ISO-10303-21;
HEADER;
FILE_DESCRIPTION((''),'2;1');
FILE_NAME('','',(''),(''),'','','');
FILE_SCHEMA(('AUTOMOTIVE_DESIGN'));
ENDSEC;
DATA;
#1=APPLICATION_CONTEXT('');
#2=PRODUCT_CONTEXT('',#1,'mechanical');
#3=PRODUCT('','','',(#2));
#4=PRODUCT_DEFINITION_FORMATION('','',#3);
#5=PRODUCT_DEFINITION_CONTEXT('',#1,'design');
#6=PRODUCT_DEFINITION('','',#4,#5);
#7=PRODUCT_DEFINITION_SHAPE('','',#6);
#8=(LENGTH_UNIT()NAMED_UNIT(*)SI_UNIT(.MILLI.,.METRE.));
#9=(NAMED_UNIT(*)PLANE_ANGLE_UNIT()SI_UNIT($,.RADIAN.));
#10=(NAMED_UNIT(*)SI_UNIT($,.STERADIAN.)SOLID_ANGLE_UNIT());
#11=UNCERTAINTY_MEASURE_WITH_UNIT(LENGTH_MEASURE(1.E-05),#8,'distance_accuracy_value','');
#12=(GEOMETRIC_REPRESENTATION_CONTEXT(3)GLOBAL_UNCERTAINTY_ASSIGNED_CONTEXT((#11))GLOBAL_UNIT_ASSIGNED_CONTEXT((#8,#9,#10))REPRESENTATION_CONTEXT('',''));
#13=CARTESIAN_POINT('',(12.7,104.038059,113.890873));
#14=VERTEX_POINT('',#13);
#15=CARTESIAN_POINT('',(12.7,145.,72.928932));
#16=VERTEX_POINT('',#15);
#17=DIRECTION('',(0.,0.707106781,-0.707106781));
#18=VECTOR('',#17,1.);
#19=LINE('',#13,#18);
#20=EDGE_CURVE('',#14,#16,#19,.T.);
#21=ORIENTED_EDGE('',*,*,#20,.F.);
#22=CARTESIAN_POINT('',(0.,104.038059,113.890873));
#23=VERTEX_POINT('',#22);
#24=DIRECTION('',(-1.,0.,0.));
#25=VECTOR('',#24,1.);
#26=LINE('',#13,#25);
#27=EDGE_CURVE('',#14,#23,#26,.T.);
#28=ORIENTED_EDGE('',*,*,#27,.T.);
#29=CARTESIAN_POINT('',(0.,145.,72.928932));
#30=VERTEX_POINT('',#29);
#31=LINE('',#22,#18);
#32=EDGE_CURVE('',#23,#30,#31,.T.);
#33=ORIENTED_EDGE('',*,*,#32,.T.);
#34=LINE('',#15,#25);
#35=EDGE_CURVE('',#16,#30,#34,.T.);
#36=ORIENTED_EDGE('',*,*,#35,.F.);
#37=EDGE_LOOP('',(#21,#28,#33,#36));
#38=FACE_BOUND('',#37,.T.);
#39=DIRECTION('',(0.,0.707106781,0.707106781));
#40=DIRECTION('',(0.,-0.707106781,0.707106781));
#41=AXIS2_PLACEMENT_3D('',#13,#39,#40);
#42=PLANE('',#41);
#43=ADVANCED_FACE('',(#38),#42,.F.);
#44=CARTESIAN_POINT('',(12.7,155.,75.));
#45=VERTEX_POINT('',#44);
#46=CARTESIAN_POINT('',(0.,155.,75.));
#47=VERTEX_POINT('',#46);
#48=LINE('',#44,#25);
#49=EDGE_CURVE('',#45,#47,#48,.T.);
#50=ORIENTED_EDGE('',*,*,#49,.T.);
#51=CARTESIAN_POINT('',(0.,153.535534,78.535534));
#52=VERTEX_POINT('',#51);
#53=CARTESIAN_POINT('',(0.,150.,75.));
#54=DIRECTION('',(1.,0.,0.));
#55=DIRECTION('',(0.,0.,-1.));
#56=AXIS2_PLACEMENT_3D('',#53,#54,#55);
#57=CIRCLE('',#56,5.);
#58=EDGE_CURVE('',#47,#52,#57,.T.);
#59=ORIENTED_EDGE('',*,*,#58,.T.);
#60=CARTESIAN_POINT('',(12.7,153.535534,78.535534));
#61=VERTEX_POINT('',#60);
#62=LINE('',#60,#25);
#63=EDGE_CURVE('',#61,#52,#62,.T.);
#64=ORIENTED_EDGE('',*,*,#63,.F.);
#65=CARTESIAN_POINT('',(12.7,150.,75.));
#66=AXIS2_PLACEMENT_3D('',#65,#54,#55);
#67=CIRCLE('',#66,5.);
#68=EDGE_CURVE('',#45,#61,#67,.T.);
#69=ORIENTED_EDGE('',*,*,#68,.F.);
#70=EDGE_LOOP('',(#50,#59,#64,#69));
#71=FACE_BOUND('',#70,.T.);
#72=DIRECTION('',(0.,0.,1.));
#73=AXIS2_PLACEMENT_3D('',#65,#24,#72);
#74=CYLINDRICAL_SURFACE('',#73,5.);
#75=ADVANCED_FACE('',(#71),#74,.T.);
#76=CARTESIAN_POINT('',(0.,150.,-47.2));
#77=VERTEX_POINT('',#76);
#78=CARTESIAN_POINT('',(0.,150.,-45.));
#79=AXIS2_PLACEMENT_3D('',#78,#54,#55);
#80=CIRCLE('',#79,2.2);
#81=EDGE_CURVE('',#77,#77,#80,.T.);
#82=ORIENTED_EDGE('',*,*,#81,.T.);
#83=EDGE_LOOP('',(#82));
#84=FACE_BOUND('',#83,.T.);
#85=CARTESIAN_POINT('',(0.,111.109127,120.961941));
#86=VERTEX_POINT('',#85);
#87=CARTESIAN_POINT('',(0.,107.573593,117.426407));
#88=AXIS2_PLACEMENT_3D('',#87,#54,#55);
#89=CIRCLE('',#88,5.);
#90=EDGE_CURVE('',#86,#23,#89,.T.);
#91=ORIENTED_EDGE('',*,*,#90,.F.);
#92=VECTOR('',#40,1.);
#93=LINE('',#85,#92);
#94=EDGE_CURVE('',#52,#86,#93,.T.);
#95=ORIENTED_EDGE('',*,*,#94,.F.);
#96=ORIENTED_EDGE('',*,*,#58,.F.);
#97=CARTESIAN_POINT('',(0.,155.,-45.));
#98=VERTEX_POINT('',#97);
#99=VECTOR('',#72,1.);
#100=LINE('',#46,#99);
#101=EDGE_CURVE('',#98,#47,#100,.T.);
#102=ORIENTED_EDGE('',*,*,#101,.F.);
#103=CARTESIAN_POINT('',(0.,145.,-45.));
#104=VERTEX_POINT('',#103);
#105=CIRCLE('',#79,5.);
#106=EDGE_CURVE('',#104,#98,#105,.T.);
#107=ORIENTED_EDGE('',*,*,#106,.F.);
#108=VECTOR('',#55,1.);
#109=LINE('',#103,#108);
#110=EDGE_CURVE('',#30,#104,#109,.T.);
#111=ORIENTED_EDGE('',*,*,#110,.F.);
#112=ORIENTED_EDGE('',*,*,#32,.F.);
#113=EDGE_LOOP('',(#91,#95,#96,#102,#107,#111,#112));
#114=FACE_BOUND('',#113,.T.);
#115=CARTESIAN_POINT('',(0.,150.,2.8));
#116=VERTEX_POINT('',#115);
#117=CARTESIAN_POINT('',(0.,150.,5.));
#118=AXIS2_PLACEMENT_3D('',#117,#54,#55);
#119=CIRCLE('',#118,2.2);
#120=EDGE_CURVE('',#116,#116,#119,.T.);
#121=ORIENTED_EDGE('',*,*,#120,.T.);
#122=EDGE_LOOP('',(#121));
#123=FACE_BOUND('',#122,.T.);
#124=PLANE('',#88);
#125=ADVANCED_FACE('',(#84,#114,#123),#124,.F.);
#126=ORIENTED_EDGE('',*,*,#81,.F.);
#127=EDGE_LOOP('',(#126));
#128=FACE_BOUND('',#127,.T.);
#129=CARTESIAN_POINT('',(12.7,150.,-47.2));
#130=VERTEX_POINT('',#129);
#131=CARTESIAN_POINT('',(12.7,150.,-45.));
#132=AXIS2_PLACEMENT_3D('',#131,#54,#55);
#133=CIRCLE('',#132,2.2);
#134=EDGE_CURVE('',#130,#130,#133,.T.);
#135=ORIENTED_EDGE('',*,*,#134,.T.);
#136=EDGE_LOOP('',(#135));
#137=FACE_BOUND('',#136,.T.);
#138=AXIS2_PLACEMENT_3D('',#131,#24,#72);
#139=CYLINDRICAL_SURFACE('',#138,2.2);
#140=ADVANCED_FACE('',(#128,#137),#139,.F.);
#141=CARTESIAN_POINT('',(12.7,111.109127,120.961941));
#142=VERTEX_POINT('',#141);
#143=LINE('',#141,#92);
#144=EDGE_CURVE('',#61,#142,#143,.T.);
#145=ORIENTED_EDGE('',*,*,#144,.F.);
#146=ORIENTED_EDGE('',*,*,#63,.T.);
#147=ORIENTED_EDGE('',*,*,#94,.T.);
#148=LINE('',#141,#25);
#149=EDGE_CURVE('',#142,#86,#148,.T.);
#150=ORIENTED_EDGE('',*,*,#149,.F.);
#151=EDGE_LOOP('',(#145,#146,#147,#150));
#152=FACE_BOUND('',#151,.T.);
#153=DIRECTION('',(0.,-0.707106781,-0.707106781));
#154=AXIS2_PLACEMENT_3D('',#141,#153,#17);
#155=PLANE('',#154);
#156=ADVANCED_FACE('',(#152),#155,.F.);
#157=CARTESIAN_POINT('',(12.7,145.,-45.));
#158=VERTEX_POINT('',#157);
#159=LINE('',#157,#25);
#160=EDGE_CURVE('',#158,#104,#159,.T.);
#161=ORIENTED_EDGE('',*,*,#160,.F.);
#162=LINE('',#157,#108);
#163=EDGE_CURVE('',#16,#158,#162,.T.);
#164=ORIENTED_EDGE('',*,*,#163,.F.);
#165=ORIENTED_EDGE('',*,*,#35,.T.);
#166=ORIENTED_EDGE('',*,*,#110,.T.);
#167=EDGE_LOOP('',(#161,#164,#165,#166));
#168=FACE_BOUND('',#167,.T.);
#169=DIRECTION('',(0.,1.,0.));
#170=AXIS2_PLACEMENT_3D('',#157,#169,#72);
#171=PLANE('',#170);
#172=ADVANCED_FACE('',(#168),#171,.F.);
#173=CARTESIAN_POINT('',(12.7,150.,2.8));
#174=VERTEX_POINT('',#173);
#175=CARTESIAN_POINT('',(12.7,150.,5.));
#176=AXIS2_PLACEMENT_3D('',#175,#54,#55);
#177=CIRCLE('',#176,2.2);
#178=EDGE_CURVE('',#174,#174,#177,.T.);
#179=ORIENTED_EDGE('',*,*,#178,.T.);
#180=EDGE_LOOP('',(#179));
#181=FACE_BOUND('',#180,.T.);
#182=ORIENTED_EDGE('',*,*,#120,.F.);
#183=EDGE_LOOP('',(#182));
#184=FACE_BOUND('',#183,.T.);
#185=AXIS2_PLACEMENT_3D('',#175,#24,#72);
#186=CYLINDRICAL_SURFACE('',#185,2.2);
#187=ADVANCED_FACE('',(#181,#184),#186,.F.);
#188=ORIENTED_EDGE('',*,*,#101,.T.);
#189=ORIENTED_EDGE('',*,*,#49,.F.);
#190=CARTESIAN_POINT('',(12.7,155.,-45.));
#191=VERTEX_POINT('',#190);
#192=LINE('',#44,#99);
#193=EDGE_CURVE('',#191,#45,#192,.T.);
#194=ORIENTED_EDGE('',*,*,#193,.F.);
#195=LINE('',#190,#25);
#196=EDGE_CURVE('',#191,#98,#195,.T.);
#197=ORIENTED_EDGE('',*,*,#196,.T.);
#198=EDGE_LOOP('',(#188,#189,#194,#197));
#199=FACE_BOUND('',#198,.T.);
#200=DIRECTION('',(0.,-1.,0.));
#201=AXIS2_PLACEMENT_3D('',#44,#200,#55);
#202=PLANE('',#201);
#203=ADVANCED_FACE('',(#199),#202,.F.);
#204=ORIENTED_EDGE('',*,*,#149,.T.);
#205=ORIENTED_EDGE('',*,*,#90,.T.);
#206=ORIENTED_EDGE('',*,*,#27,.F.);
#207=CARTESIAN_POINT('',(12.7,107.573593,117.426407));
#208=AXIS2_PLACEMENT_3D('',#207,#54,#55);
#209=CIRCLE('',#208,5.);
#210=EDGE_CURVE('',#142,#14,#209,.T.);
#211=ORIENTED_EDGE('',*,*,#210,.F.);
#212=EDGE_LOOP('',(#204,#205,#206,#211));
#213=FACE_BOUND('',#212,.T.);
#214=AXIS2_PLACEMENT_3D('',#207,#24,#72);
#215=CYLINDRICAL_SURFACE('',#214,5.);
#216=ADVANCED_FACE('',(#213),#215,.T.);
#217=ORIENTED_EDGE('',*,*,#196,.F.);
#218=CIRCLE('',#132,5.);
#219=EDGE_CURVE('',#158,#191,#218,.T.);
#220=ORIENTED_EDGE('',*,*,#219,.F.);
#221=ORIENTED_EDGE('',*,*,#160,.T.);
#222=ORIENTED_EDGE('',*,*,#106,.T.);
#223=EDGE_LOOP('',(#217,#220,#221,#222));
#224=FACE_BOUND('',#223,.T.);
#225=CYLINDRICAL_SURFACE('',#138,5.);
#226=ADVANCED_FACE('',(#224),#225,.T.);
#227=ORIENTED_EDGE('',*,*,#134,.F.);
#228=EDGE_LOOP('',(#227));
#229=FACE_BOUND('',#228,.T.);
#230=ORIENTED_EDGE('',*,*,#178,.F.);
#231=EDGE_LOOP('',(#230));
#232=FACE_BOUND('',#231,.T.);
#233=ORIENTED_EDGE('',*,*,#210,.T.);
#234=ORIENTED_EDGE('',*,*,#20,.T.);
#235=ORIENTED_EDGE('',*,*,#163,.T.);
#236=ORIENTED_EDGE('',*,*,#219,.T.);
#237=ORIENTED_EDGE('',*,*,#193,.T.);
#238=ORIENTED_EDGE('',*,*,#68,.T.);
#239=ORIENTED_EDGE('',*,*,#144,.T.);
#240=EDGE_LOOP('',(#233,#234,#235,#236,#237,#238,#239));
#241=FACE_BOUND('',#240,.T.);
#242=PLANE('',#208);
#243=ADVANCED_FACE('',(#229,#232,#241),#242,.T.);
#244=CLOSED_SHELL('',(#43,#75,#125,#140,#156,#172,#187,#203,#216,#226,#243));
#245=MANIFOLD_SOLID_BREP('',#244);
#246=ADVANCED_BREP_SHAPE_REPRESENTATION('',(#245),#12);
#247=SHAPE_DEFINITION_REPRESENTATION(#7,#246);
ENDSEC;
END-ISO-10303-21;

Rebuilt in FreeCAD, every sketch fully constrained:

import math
import FreeCAD as App
import Part
import Sketcher
Q = App.Units.Quantity

doc = App.newDocument("Part")
params = doc.addObject("Spreadsheet::Sheet", "Params")
for row, (alias, value) in enumerate([
    ("sketch1_radius", "5 mm"),
    ("sketch1_diameter", "4.4 mm"),
    ("sketch1_height", "120 mm"),
    ("sketch1_length", "60 mm"),
    ("pad1_length", "12.7 mm"),
], start=1):
    params.set(f"A{row}", alias)
    params.set(f"B{row}", "=" + value)
    params.setAlias(f"B{row}", alias)

body = doc.addObject("PartDesign::Body", "Body")

sketch1 = doc.addObject("Sketcher::SketchObject", "Sketch")
body.addObject(sketch1)
sketch1.AttachmentSupport = (doc.YZ_Plane, [""])
sketch1.MapMode = "FlatFace"
sketch1.addGeometry([
    Part.LineSegment(App.Vector(155, -45, 0), App.Vector(155, 75, 0)),
    Part.ArcOfCircle(Part.Circle(App.Vector(150, 75, 0), App.Vector(0, 0, 1), 5), math.radians(0), math.radians(45)),
    Part.LineSegment(App.Vector(153.535534, 78.535534, 0), App.Vector(111.109127, 120.961941, 0)),
    Part.ArcOfCircle(Part.Circle(App.Vector(107.573593, 117.426407, 0), App.Vector(0, 0, 1), 5), math.radians(45), math.radians(225)),
    Part.LineSegment(App.Vector(104.038059, 113.890873, 0), App.Vector(145, 72.928932, 0)),
    Part.LineSegment(App.Vector(145, 72.928932, 0), App.Vector(145, -45, 0)),
    Part.ArcOfCircle(Part.Circle(App.Vector(150, -45, 0), App.Vector(0, 0, 1), 5), math.radians(180), math.radians(360)),
    Part.Circle(App.Vector(150, -45, 0), App.Vector(0, 0, 1), 2.2),
    Part.Circle(App.Vector(150, 5, 0), App.Vector(0, 0, 1), 2.2),
], False)
sketch1.addConstraint([
    Sketcher.Constraint("Tangent", 0, 2, 1, 1),
    Sketcher.Constraint("Tangent", 1, 2, 2, 1),
    Sketcher.Constraint("Tangent", 2, 2, 3, 1),
    Sketcher.Constraint("Tangent", 3, 2, 4, 1),
    Sketcher.Constraint("Coincident", 4, 2, 5, 1),
    Sketcher.Constraint("Tangent", 5, 2, 6, 1),
    Sketcher.Constraint("Tangent", 6, 2, 0, 1),
    Sketcher.Constraint("Vertical", 0),
    Sketcher.Constraint("Vertical", 5),
    Sketcher.Constraint("Coincident", 7, 3, 6, 3),
    Sketcher.Constraint("Equal", 1, 3),
    Sketcher.Constraint("Equal", 3, 6),
    Sketcher.Constraint("Equal", 7, 8),
    Sketcher.Constraint("Parallel", 2, 4),
    Sketcher.Constraint("Vertical", 7, 3, 8, 3),
    Sketcher.Constraint("Radius", 1, 5.0),
    Sketcher.Constraint("Diameter", 7, 4.4),
    Sketcher.Constraint("DistanceY", 0, 1, 0, 2, 120.0),
    Sketcher.Constraint("Angle", 2, Q("135 deg")),
    Sketcher.Constraint("Distance", 2, 60.0),
    Sketcher.Constraint("DistanceX", -1, 1, 1, 3, 150.0),
    Sketcher.Constraint("DistanceY", -1, 1, 1, 3, 75.0),
    Sketcher.Constraint("DistanceY", -1, 1, 8, 3, 5.0),
])
sketch1.setExpression("Constraints[15]", "Params.sketch1_radius")
sketch1.setExpression("Constraints[16]", "Params.sketch1_diameter")
sketch1.setExpression("Constraints[17]", "Params.sketch1_height")
sketch1.setExpression("Constraints[19]", "Params.sketch1_length")
pad1 = doc.addObject("PartDesign::Pad", "Pad")
body.addObject(pad1)
pad1.Profile = sketch1
pad1.setExpression("Length", "Params.pad1_length")

doc.recompute()
